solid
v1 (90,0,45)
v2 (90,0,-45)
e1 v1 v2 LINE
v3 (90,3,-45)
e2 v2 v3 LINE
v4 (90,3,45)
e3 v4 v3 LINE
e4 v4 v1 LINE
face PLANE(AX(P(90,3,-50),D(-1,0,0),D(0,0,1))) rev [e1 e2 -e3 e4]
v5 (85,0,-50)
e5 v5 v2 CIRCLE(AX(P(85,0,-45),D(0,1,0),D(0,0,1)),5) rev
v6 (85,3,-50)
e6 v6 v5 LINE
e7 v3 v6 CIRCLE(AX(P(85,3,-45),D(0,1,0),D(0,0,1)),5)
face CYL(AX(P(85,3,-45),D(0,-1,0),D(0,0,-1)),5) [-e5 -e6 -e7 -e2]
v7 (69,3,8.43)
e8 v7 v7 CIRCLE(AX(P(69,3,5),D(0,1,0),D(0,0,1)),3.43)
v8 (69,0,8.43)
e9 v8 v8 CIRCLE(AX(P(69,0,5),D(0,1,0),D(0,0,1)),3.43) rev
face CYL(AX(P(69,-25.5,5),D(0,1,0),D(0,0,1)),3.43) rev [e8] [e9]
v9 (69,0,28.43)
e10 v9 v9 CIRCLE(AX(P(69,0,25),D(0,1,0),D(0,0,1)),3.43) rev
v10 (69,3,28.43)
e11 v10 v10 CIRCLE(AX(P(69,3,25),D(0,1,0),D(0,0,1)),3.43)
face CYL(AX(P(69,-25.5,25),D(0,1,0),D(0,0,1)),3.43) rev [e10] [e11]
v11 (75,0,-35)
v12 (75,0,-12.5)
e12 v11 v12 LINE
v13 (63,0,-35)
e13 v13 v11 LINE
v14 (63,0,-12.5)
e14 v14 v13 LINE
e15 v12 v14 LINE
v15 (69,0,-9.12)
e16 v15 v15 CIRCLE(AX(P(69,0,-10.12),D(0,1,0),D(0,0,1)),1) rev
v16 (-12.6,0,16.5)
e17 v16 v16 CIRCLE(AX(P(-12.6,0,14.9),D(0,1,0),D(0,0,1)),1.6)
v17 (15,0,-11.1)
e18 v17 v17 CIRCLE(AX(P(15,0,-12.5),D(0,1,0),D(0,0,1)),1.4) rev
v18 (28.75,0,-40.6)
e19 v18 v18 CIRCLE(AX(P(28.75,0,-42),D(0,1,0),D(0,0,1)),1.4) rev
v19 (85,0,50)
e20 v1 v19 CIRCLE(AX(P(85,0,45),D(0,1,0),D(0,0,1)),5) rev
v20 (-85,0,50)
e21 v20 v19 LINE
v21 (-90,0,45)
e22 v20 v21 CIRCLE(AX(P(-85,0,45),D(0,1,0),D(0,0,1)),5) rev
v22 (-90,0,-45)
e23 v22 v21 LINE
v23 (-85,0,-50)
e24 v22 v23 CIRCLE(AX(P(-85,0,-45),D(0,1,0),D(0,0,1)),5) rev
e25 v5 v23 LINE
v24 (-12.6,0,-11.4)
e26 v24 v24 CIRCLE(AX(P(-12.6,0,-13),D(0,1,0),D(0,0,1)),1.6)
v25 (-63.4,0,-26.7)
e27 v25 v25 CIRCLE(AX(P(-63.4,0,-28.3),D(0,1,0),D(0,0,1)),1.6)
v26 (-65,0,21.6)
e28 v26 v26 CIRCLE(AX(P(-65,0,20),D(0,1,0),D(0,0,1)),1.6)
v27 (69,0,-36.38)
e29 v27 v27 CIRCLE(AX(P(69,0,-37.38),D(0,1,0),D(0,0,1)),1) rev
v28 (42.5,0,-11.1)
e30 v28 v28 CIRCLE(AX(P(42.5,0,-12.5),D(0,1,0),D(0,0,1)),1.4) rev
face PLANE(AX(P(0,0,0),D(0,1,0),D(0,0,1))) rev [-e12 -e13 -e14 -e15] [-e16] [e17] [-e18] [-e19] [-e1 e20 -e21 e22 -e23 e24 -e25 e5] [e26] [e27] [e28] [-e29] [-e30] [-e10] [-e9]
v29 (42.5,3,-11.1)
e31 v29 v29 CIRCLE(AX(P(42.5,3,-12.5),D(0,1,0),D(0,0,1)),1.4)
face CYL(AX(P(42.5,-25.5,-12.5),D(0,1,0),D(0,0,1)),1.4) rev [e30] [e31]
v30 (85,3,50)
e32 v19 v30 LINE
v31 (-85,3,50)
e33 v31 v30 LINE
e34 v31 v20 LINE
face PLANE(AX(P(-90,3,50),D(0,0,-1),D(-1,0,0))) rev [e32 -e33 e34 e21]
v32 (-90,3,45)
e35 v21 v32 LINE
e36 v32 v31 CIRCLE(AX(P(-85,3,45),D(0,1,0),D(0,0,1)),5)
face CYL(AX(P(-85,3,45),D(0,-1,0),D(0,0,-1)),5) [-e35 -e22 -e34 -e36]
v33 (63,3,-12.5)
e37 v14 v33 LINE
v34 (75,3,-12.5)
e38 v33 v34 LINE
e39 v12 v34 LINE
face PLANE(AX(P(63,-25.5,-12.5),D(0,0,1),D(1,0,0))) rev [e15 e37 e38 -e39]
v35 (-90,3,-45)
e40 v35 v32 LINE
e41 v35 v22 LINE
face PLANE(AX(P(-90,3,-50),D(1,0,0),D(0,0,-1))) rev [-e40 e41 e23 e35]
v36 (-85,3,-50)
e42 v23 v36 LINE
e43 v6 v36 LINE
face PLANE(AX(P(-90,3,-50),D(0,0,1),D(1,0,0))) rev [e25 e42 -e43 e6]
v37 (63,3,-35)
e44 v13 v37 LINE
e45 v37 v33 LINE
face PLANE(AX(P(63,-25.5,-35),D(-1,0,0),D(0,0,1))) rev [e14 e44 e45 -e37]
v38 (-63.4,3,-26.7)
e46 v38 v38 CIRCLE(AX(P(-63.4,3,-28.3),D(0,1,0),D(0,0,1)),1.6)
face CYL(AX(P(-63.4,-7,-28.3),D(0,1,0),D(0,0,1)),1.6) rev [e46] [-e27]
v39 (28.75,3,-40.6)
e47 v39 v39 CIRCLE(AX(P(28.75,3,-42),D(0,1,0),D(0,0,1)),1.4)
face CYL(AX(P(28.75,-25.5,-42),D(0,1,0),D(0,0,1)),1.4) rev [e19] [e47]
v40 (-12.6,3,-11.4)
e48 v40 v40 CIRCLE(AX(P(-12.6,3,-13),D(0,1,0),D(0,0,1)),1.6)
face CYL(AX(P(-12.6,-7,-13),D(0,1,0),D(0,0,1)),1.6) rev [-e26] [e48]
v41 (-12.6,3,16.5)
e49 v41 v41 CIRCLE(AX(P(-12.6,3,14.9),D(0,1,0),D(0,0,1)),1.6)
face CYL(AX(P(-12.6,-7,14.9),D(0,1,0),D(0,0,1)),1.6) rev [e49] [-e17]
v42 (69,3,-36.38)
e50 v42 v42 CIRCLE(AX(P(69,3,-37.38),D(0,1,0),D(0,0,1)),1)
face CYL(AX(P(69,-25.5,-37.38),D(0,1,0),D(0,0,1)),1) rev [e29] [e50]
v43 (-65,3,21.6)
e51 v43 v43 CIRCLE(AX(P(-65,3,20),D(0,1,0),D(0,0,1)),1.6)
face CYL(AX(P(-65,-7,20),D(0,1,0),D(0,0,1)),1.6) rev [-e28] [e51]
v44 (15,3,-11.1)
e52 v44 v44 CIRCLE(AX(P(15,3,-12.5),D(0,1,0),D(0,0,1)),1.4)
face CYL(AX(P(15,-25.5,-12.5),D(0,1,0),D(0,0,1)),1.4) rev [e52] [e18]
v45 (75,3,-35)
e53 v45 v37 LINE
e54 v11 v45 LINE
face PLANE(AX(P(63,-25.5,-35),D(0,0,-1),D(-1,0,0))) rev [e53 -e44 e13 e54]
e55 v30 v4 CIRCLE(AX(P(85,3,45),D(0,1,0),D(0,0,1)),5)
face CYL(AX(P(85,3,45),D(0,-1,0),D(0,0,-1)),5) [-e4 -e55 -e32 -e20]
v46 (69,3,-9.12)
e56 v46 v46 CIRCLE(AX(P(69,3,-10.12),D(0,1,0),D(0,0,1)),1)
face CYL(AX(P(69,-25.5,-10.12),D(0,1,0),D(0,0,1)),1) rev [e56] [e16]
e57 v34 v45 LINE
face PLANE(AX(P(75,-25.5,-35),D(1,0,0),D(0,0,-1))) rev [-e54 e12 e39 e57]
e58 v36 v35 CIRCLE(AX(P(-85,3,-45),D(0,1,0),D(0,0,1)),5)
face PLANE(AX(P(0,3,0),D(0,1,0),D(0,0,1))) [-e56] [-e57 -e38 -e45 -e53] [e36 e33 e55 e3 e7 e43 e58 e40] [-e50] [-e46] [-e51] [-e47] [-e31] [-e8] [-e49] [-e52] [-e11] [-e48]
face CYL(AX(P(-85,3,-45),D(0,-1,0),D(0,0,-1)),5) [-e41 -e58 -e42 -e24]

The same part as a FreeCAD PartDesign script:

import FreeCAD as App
import Part
import Sketcher

V = App.Vector
Q = App.Units.Quantity


def edges_at(feature, points):
    """Names of the edges that pass closest to the given points."""
    edges = feature.Shape.Edges
    near = lambda p: min(range(len(edges)), key=lambda i: edges[i].distToShape(Part.Vertex(*p))[0])
    return sorted({f"Edge{near(p) + 1}" for p in points})


def add_polygon(sketch, points):
    """Adds a closed chain of lines whose ends are joined by coincident constraints."""
    first, n = sketch.GeometryCount, len(points)
    for a, b in zip(points, points[1:] + points[:1]):
        sketch.addGeometry(Part.LineSegment(App.Vector(*a, 0), App.Vector(*b, 0)), False)
    for i in range(n):
        sketch.addConstraint(Sketcher.Constraint("Coincident", first + i, 2, first + (i + 1) % n, 1))

doc = App.newDocument("Part")
body = doc.addObject("PartDesign::Body", "Body")

sketch1 = body.newObject("Sketcher::SketchObject", "Sketch")
sketch1.AttachmentSupport = (doc.getObject("XZ_Plane"), [""])
sketch1.MapMode = "FlatFace"
add_polygon(sketch1, [(-90, -50), (-90, 50), (90, 50), (90, -50)])
sketch1.addConstraint([
    Sketcher.Constraint("Vertical", 0),
    Sketcher.Constraint("Horizontal", 1),
    Sketcher.Constraint("Vertical", 2),
    Sketcher.Constraint("Horizontal", 3),
    Sketcher.Constraint("Symmetric", 0, 2, 2, 2, -1, 1),
    Sketcher.Constraint("DistanceX", 1, 1, 1, 2, Q("180 mm")),
    Sketcher.Constraint("DistanceY", 0, 1, 0, 2, Q("100 mm")),
])
pad1 = body.newObject("PartDesign::Pad", "Pad")
pad1.Profile = sketch1
pad1.Length = 3
pad1.Reversed = True

sketch2 = body.newObject("Sketcher::SketchObject", "Sketch001")
sketch2.AttachmentSupport = (doc.getObject("XZ_Plane"), [""])
sketch2.MapMode = "FlatFace"
sketch2.AttachmentOffset = App.Placement(V(0, 0, -3), App.Rotation())
sketch2.addGeometry([
    Part.Circle(V(-65, 20, 0), V(0, 0, 1), 1.6),
    Part.Circle(V(-63.4, -28.3, 0), V(0, 0, 1), 1.6),
    Part.Circle(V(-12.6, -13, 0), V(0, 0, 1), 1.6),
    Part.Circle(V(-12.6, 14.9, 0), V(0, 0, 1), 1.6),
], False)
sketch2.addConstraint([
    Sketcher.Constraint("Equal", 0, 1),
    Sketcher.Constraint("Equal", 1, 2),
    Sketcher.Constraint("Equal", 2, 3),
    Sketcher.Constraint("Vertical", 2, 3, 3, 3),
    Sketcher.Constraint("Diameter", 0, Q("3.2 mm")),
    Sketcher.Constraint("DistanceX", 0, 3, -1, 1, Q("65 mm")),
    Sketcher.Constraint("DistanceY", -1, 1, 0, 3, Q("20 mm")),
    Sketcher.Constraint("DistanceY", 2, 3, -1, 1, Q("13 mm")),
    Sketcher.Constraint("DistanceX", 1, 3, -1, 1, Q("63.4 mm")),
    Sketcher.Constraint("DistanceY", 1, 3, -1, 1, Q("28.3 mm")),
    Sketcher.Constraint("DistanceX", 2, 3, -1, 1, Q("12.6 mm")),
    Sketcher.Constraint("DistanceY", -1, 1, 3, 3, Q("14.9 mm")),
])
pocket1 = body.newObject("PartDesign::Pocket", "Pocket")
pocket1.Profile = sketch2
pocket1.Length = 10
pocket1.Reversed = True
doc.recompute()

fillet = body.newObject("PartDesign::Fillet", "Fillet")
fillet.Base = (pocket1, edges_at(pocket1, [
    (90, 1.5, 50),
    (-90, 1.5, 50),
    (-90, 1.5, -50),
    (90, 1.5, -50),
]))
fillet.Radius = 5

sketch3 = body.newObject("Sketcher::SketchObject", "Sketch002")
sketch3.AttachmentSupport = (doc.getObject("XZ_Plane"), [""])
sketch3.MapMode = "FlatFace"
sketch3.AttachmentOffset = App.Placement(V(0, 0, -3), App.Rotation())
sketch3.addGeometry(Part.Circle(V(69, -10.1, 0), V(0, 0, 1), 1), False)
sketch3.addGeometry(Part.Circle(V(69, -37.4, 0), V(0, 0, 1), 1), False)
sketch3.addGeometry(Part.Circle(V(69, 25, 0), V(0, 0, 1), 3.4), False)
sketch3.addGeometry(Part.Circle(V(69, 5, 0), V(0, 0, 1), 3.4), False)
sketch3.addGeometry(Part.Circle(V(42.5, -12.5, 0), V(0, 0, 1), 1.4), False)
sketch3.addGeometry(Part.Circle(V(15, -12.5, 0), V(0, 0, 1), 1.4), False)
sketch3.addGeometry(Part.Circle(V(28.8, -42, 0), V(0, 0, 1), 1.4), False)
add_polygon(sketch3, [(63, -35), (63, -12.5), (75, -12.5), (75, -35)])
sketch3.addConstraint([
    Sketcher.Constraint("Vertical", 7),
    Sketcher.Constraint("Horizontal", 8),
    Sketcher.Constraint("Vertical", 9),
    Sketcher.Constraint("Horizontal", 10),
    Sketcher.Constraint("Equal", 0, 1),
    Sketcher.Constraint("Equal", 2, 3),
    Sketcher.Constraint("Equal", 4, 5),
    Sketcher.Constraint("Equal", 5, 6),
    Sketcher.Constraint("Horizontal", 4, 3, 5, 3),
    Sketcher.Constraint("Horizontal", 5, 3, 7, 2),
    Sketcher.Constraint("Vertical", 0, 3, 1, 3),
    Sketcher.Constraint("Vertical", 1, 3, 2, 3),
    Sketcher.Constraint("Vertical", 2, 3, 3, 3),
    Sketcher.Constraint("Diameter", 0, Q("2 mm")),
    Sketcher.Constraint("Diameter", 4, Q("2.8 mm")),
    Sketcher.Constraint("Diameter", 2, Q("6.86 mm")),
    Sketcher.Constraint("DistanceX", 8, 1, 8, 2, Q("12 mm")),
    Sketcher.Constraint("DistanceY", 7, 1, 7, 2, Q("22.5 mm")),
    Sketcher.Constraint("DistanceX", -1, 1, 0, 3, Q("69 mm")),
    Sketcher.Constraint("DistanceY", -1, 1, 2, 3, Q("25 mm")),
    Sketcher.Constraint("DistanceY", -1, 1, 3, 3, Q("5 mm")),
    Sketcher.Constraint("DistanceX", -1, 1, 5, 3, Q("15 mm")),
    Sketcher.Constraint("DistanceY", 6, 3, -1, 1, Q("42 mm")),
    Sketcher.Constraint("DistanceX", -1, 1, 7, 2, Q("63 mm")),
    Sketcher.Constraint("DistanceY", 9, 2, -1, 1, Q("35 mm")),
    Sketcher.Constraint("DistanceX", -1, 1, 4, 3, Q("42.5 mm")),
    Sketcher.Constraint("DistanceY", 0, 3, -1, 1, Q("10.12 mm")),
    Sketcher.Constraint("DistanceY", 1, 3, -1, 1, Q("37.38 mm")),
    Sketcher.Constraint("DistanceX", -1, 1, 6, 3, Q("28.75 mm")),
])
pocket2 = body.newObject("PartDesign::Pocket", "Pocket001")
pocket2.Profile = sketch3
pocket2.Length = 3
pocket2.Reversed = True

doc.recompute()
